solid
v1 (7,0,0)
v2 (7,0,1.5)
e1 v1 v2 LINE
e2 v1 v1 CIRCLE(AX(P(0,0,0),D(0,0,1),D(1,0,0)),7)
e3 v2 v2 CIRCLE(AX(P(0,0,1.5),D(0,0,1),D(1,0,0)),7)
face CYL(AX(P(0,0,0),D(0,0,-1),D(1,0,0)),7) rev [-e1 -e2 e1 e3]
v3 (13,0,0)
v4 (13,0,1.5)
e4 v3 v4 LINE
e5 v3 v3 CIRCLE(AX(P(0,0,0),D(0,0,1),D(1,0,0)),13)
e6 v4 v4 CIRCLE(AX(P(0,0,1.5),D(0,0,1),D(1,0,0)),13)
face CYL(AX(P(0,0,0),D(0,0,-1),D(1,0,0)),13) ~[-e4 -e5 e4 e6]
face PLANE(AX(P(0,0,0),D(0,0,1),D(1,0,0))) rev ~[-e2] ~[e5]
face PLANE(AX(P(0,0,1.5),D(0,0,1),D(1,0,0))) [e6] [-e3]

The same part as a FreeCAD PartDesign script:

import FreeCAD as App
import Part
import Sketcher
Q = App.Units.Quantity

doc = App.newDocument("Part")
params = doc.addObject("Spreadsheet::Sheet", "Params")
for row, (alias, value) in enumerate([
    ("sketch1_diameter", "26 mm"),
    ("sketch1_diameter2", "14 mm"),
    ("pad1_length", "1.5 mm"),
], start=1):
    params.set(f"A{row}", alias)
    params.set(f"B{row}", "=" + value)
    params.setAlias(f"B{row}", alias)

body = doc.addObject("PartDesign::Body", "Body")

# Sketch on XY plane
sketch1 = body.newObject("Sketcher::SketchObject", "Sketch")
sketch1.AttachmentSupport = (doc.getObject("XY_Plane"), [""])
sketch1.MapMode = "FlatFace"
sketch1.addGeometry([
    Part.Circle(App.Vector(0, 0, 0), App.Vector(0, 0, 1), 13),
    Part.Circle(App.Vector(0, 0, 0), App.Vector(0, 0, 1), 7),
], False)
sketch1.addConstraint([
    Sketcher.Constraint("Coincident", 0, 3, -1, 1),
    Sketcher.Constraint("Coincident", 1, 3, -1, 1),
    Sketcher.Constraint("Diameter", 0, Q("26 mm")),
    Sketcher.Constraint("Diameter", 1, Q("14 mm")),
])
sketch1.setExpression("Constraints[2]", "Params.sketch1_diameter")
sketch1.setExpression("Constraints[3]", "Params.sketch1_diameter2")
pad1 = body.newObject("PartDesign::Pad", "Pad")
pad1.Profile = sketch1
pad1.setExpression("Length", "Params.pad1_length")

doc.recompute()
